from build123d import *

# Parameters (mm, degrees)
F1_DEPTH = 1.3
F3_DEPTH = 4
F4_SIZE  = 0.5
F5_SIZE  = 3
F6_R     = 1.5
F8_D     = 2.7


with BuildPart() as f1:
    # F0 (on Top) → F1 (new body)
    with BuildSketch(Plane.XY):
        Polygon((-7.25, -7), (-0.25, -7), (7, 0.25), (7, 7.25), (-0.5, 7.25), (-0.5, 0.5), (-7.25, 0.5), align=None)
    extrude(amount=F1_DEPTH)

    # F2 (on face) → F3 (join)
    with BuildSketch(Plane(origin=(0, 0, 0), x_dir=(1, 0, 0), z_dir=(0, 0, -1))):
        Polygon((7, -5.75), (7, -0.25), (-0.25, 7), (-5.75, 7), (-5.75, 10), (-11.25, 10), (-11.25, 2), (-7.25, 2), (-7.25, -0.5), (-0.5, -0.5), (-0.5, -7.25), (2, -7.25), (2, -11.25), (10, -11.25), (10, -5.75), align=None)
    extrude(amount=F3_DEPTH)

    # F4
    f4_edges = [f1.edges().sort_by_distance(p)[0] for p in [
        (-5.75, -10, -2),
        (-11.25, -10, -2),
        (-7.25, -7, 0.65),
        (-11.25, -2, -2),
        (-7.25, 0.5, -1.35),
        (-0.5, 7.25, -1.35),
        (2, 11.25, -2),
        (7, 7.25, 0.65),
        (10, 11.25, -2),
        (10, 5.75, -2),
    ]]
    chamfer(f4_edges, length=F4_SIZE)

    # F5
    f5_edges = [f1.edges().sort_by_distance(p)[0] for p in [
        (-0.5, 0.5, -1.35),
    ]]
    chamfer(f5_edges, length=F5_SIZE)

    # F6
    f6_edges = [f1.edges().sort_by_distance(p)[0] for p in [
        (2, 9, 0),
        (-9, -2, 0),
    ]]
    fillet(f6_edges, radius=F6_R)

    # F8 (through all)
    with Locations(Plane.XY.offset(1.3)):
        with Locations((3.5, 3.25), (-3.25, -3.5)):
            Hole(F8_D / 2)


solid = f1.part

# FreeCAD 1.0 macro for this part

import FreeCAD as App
import Part
import Sketcher


def edges_at(feature, points):
    """Names of the edges that pass closest to the given points."""
    edges = feature.Shape.Edges
    near = lambda p: min(range(len(edges)), key=lambda i: edges[i].distToShape(Part.Vertex(*p))[0])
    return sorted({f"Edge{near(p) + 1}" for p in points})


def add_polygon(sketch, points):
    """Adds a closed chain of lines whose ends are joined by coincident constraints."""
    first, n = sketch.GeometryCount, len(points)
    for a, b in zip(points, points[1:] + points[:1]):
        sketch.addGeometry(Part.LineSegment(App.Vector(*a, 0), App.Vector(*b, 0)), False)
    for i in range(n):
        sketch.addConstraint(Sketcher.Constraint("Coincident", first + i, 2, first + (i + 1) % n, 1))

doc = App.newDocument("Part")
body = doc.addObject("PartDesign::Body", "Body")

# Sketch on XY plane
sketch1 = body.newObject("Sketcher::SketchObject", "Sketch")
sketch1.AttachmentSupport = (doc.getObject("XY_Plane"), [""])
sketch1.MapMode = "FlatFace"
add_polygon(sketch1, [(-7, -7), (0, -7), (7, 0), (7, 7), (0, 7), (0, 0), (-7, 0)])  # lines 0-6
sketch1.addConstraint(Sketcher.Constraint("Horizontal", 0))
sketch1.addConstraint(Sketcher.Constraint("Vertical", 2))
sketch1.addConstraint(Sketcher.Constraint("Horizontal", 3))
sketch1.addConstraint(Sketcher.Constraint("Vertical", 4))
sketch1.addConstraint(Sketcher.Constraint("Horizontal", 5))
sketch1.addConstraint(Sketcher.Constraint("Vertical", 6))
sketch1.addConstraint(Sketcher.Constraint("Equal", 0, 2))
sketch1.addConstraint(Sketcher.Constraint("Equal", 5, 4))
sketch1.addConstraint(Sketcher.Constraint("Equal", 3, 6))
sketch1.addConstraint(Sketcher.Constraint("DistanceX", 0, 1, 0, 2, 7.0))
sketch1.addConstraint(Sketcher.Constraint("DistanceX", 3, 2, 3, 1, 7.5))
sketch1.addConstraint(Sketcher.Constraint("DistanceY", 0, 2, -1, 1, 7.0))
sketch1.addConstraint(Sketcher.Constraint("DistanceX", -1, 1, 1, 2, 7.0))
sketch1.addConstraint(Sketcher.Constraint("DistanceX", 5, 2, 5, 1, 6.75))
pad1 = body.newObject("PartDesign::Pad", "Pad")
pad1.Profile = sketch1
pad1.Length = 1.3

# Sketch on XY plane
sketch2 = body.newObject("Sketcher::SketchObject", "Sketch001")
sketch2.AttachmentSupport = (doc.getObject("XY_Plane"), [""])
sketch2.MapMode = "FlatFace"
add_polygon(sketch2, [(7, 5.8), (7, 0.2), (-0.2, -7), (-5.8, -7), (-5.8, -10), (-11.2, -10), (-11.2, -2), (-7.2, -2), (-7.2, 0.5), (-0.5, 0.5), (-0.5, 7.2), (2, 7.2), (2, 11.2), (10, 11.2), (10, 5.8)])  # lines 0-14
sketch2.addConstraint(Sketcher.Constraint("Vertical", 0))
sketch2.addConstraint(Sketcher.Constraint("Horizontal", 2))
sketch2.addConstraint(Sketcher.Constraint("Vertical", 3))
sketch2.addConstraint(Sketcher.Constraint("Horizontal", 4))
sketch2.addConstraint(Sketcher.Constraint("Vertical", 5))
sketch2.addConstraint(Sketcher.Constraint("Horizontal", 6))
sketch2.addConstraint(Sketcher.Constraint("Vertical", 7))
sketch2.addConstraint(Sketcher.Constraint("Horizontal", 8))
sketch2.addConstraint(Sketcher.Constraint("Vertical", 9))
sketch2.addConstraint(Sketcher.Constraint("Horizontal", 10))
sketch2.addConstraint(Sketcher.Constraint("Vertical", 11))
sketch2.addConstraint(Sketcher.Constraint("Horizontal", 12))
sketch2.addConstraint(Sketcher.Constraint("Vertical", 13))
sketch2.addConstraint(Sketcher.Constraint("Horizontal", 14))
sketch2.addConstraint(Sketcher.Constraint("Equal", 2, 4))
sketch2.addConstraint(Sketcher.Constraint("Equal", 4, 0))
sketch2.addConstraint(Sketcher.Constraint("Equal", 14, 3))
sketch2.addConstraint(Sketcher.Constraint("Equal", 12, 5))
sketch2.addConstraint(Sketcher.Constraint("Equal", 10, 7))
sketch2.addConstraint(Sketcher.Constraint("Equal", 8, 9))
sketch2.addConstraint(Sketcher.Constraint("Equal", 6, 11))
sketch2.addConstraint(Sketcher.Constraint("Equal", 0, 13))
sketch2.addConstraint(Sketcher.Constraint("DistanceX", 6, 1, 6, 2, 4.0))
sketch2.addConstraint(Sketcher.Constraint("DistanceX", 12, 1, 12, 2, 8.0))
sketch2.addConstraint(Sketcher.Constraint("DistanceX", 14, 2, 14, 1, 3.0))
sketch2.addConstraint(Sketcher.Constraint("DistanceX", 2, 2, 2, 1, 5.5))
sketch2.addConstraint(Sketcher.Constraint("DistanceX", 10, 1, 10, 2, 2.5))
sketch2.addConstraint(Sketcher.Constraint("DistanceX", -1, 1, 0, 2, 7.0))
sketch2.addConstraint(Sketcher.Constraint("DistanceY", 1, 2, -1, 1, 7.0))
sketch2.addConstraint(Sketcher.Constraint("DistanceX", 8, 1, 8, 2, 6.75))
pad2 = body.newObject("PartDesign::Pad", "Pad001")
pad2.Profile = sketch2
pad2.Length = 4
pad2.Reversed = True
doc.recompute()

chamfer = body.newObject("PartDesign::Chamfer", "Chamfer")
chamfer.Base = (pad2, edges_at(pad2, [
    (-5.75, -10, -2),
    (-11.25, -10, -2),
    (-7.25, -7, 0.65),
    (-11.25, -2, -2),
    (-7.25, 0.5, -1.35),
    (-0.5, 7.25, -1.35),
    (2, 11.25, -2),
    (7, 7.25, 0.65),
    (10, 11.25, -2),
    (10, 5.75, -2),
]))
chamfer.Size = 0.5
doc.recompute()

chamfer2 = body.newObject("PartDesign::Chamfer", "Chamfer001")
chamfer2.Base = (chamfer, edges_at(chamfer, [(-0.5, 0.5, -1.35)]))
chamfer2.Size = 3
doc.recompute()

fillet = body.newObject("PartDesign::Fillet", "Fillet")
fillet.Base = (chamfer2, edges_at(chamfer2, [(2, 9, 0), (-9, -2, 0)]))
fillet.Radius = 1.5

# Sketch on XY plane
sketch3 = body.newObject("Sketcher::SketchObject", "Sketch002")
sketch3.AttachmentSupport = (doc.getObject("XY_Plane"), [""])
sketch3.MapMode = "FlatFace"
sketch3.AttachmentOffset = App.Placement(App.Vector(0, 0, 1.3), App.Rotation())
sketch3.addGeometry(Part.Circle(App.Vector(3.5, 3.2, 0), App.Vector(0, 0, 1), 1.4), False)
sketch3.addGeometry(Part.Circle(App.Vector(-3.2, -3.5, 0), App.Vector(0, 0, 1), 1.4), False)
sketch3.addConstraint(Sketcher.Constraint("Equal", 0, 1))
sketch3.addConstraint(Sketcher.Constraint("Diameter", 0, 2.7))
sketch3.addConstraint(Sketcher.Constraint("DistanceX", -1, 1, 0, 3, 3.5))
sketch3.addConstraint(Sketcher.Constraint("DistanceY", 1, 3, -1, 1, 3.5))
sketch3.addConstraint(Sketcher.Constraint("DistanceY", -1, 1, 0, 3, 3.25))
sketch3.addConstraint(Sketcher.Constraint("DistanceX", 1, 3, -1, 1, 3.25))
doc.recompute()
hole = body.newObject("PartDesign::Hole", "Hole")
hole.Profile = sketch3
hole.ThreadType = "None"
hole.Diameter = 2.7
hole.DepthType = "ThroughAll"

doc.recompute()
